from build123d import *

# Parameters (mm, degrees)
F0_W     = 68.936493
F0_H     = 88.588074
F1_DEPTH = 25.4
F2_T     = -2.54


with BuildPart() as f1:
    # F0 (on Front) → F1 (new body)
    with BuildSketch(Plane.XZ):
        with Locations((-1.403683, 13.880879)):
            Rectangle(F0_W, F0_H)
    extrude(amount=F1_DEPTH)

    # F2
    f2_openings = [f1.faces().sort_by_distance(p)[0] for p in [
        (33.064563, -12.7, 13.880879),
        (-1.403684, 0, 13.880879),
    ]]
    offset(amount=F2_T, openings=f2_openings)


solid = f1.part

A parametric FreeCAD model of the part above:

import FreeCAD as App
import Part
import Sketcher

V = App.Vector
Q = App.Units.Quantity


def faces_at(feature, points):
    """Names of the faces that lie closest to the given points."""
    faces = feature.Shape.Faces
    near = lambda p: min(range(len(faces)), key=lambda i: faces[i].distToShape(Part.Vertex(*p))[0])
    return sorted({f"Face{near(p) + 1}" for p in points})


def add_polygon(sketch, points):
    """Adds a closed chain of lines whose ends are joined by coincident constraints."""
    first, n = sketch.GeometryCount, len(points)
    for a, b in zip(points, points[1:] + points[:1]):
        sketch.addGeometry(Part.LineSegment(App.Vector(*a, 0), App.Vector(*b, 0)), False)
    for i in range(n):
        sketch.addConstraint(Sketcher.Constraint("Coincident", first + i, 2, first + (i + 1) % n, 1))

doc = App.newDocument("Part")
body = doc.addObject("PartDesign::Body", "Body")

sketch1 = body.newObject("Sketcher::SketchObject", "Sketch")
sketch1.AttachmentSupport = (doc.getObject("XZ_Plane"), [""])
sketch1.MapMode = "FlatFace"
add_polygon(sketch1, [(-36, 58), (-36, -30), (33, -30), (33, 58)])
sketch1.addConstraint(Sketcher.Constraint("Vertical", 0))
sketch1.addConstraint(Sketcher.Constraint("Horizontal", 1))
sketch1.addConstraint(Sketcher.Constraint("Vertical", 2))
sketch1.addConstraint(Sketcher.Constraint("Horizontal", 3))
sketch1.addConstraint(Sketcher.Constraint("DistanceX", 1, 1, 1, 2, Q("68.936493 mm")))
sketch1.addConstraint(Sketcher.Constraint("DistanceY", 0, 2, 0, 1, Q("88.588074 mm")))
sketch1.addConstraint(Sketcher.Constraint("DistanceX", 0, 2, -1, 1, Q("35.87193 mm")))
sketch1.addConstraint(Sketcher.Constraint("DistanceY", 0, 2, -1, 1, Q("30.413158 mm")))
pad1 = body.newObject("PartDesign::Pad", "Pad")
pad1.Profile = sketch1
pad1.Length = Q("1 in")
doc.recompute()

thickness = body.newObject("PartDesign::Thickness", "Thickness")
thickness.Base = (pad1, faces_at(pad1, [(33.065, -12.7, 13.881), (-1.404, 0, 13.881)]))
thickness.Value = Q("0.1 in")
thickness.Reversed = True
thickness.Join = "Arc"

doc.recompute()
